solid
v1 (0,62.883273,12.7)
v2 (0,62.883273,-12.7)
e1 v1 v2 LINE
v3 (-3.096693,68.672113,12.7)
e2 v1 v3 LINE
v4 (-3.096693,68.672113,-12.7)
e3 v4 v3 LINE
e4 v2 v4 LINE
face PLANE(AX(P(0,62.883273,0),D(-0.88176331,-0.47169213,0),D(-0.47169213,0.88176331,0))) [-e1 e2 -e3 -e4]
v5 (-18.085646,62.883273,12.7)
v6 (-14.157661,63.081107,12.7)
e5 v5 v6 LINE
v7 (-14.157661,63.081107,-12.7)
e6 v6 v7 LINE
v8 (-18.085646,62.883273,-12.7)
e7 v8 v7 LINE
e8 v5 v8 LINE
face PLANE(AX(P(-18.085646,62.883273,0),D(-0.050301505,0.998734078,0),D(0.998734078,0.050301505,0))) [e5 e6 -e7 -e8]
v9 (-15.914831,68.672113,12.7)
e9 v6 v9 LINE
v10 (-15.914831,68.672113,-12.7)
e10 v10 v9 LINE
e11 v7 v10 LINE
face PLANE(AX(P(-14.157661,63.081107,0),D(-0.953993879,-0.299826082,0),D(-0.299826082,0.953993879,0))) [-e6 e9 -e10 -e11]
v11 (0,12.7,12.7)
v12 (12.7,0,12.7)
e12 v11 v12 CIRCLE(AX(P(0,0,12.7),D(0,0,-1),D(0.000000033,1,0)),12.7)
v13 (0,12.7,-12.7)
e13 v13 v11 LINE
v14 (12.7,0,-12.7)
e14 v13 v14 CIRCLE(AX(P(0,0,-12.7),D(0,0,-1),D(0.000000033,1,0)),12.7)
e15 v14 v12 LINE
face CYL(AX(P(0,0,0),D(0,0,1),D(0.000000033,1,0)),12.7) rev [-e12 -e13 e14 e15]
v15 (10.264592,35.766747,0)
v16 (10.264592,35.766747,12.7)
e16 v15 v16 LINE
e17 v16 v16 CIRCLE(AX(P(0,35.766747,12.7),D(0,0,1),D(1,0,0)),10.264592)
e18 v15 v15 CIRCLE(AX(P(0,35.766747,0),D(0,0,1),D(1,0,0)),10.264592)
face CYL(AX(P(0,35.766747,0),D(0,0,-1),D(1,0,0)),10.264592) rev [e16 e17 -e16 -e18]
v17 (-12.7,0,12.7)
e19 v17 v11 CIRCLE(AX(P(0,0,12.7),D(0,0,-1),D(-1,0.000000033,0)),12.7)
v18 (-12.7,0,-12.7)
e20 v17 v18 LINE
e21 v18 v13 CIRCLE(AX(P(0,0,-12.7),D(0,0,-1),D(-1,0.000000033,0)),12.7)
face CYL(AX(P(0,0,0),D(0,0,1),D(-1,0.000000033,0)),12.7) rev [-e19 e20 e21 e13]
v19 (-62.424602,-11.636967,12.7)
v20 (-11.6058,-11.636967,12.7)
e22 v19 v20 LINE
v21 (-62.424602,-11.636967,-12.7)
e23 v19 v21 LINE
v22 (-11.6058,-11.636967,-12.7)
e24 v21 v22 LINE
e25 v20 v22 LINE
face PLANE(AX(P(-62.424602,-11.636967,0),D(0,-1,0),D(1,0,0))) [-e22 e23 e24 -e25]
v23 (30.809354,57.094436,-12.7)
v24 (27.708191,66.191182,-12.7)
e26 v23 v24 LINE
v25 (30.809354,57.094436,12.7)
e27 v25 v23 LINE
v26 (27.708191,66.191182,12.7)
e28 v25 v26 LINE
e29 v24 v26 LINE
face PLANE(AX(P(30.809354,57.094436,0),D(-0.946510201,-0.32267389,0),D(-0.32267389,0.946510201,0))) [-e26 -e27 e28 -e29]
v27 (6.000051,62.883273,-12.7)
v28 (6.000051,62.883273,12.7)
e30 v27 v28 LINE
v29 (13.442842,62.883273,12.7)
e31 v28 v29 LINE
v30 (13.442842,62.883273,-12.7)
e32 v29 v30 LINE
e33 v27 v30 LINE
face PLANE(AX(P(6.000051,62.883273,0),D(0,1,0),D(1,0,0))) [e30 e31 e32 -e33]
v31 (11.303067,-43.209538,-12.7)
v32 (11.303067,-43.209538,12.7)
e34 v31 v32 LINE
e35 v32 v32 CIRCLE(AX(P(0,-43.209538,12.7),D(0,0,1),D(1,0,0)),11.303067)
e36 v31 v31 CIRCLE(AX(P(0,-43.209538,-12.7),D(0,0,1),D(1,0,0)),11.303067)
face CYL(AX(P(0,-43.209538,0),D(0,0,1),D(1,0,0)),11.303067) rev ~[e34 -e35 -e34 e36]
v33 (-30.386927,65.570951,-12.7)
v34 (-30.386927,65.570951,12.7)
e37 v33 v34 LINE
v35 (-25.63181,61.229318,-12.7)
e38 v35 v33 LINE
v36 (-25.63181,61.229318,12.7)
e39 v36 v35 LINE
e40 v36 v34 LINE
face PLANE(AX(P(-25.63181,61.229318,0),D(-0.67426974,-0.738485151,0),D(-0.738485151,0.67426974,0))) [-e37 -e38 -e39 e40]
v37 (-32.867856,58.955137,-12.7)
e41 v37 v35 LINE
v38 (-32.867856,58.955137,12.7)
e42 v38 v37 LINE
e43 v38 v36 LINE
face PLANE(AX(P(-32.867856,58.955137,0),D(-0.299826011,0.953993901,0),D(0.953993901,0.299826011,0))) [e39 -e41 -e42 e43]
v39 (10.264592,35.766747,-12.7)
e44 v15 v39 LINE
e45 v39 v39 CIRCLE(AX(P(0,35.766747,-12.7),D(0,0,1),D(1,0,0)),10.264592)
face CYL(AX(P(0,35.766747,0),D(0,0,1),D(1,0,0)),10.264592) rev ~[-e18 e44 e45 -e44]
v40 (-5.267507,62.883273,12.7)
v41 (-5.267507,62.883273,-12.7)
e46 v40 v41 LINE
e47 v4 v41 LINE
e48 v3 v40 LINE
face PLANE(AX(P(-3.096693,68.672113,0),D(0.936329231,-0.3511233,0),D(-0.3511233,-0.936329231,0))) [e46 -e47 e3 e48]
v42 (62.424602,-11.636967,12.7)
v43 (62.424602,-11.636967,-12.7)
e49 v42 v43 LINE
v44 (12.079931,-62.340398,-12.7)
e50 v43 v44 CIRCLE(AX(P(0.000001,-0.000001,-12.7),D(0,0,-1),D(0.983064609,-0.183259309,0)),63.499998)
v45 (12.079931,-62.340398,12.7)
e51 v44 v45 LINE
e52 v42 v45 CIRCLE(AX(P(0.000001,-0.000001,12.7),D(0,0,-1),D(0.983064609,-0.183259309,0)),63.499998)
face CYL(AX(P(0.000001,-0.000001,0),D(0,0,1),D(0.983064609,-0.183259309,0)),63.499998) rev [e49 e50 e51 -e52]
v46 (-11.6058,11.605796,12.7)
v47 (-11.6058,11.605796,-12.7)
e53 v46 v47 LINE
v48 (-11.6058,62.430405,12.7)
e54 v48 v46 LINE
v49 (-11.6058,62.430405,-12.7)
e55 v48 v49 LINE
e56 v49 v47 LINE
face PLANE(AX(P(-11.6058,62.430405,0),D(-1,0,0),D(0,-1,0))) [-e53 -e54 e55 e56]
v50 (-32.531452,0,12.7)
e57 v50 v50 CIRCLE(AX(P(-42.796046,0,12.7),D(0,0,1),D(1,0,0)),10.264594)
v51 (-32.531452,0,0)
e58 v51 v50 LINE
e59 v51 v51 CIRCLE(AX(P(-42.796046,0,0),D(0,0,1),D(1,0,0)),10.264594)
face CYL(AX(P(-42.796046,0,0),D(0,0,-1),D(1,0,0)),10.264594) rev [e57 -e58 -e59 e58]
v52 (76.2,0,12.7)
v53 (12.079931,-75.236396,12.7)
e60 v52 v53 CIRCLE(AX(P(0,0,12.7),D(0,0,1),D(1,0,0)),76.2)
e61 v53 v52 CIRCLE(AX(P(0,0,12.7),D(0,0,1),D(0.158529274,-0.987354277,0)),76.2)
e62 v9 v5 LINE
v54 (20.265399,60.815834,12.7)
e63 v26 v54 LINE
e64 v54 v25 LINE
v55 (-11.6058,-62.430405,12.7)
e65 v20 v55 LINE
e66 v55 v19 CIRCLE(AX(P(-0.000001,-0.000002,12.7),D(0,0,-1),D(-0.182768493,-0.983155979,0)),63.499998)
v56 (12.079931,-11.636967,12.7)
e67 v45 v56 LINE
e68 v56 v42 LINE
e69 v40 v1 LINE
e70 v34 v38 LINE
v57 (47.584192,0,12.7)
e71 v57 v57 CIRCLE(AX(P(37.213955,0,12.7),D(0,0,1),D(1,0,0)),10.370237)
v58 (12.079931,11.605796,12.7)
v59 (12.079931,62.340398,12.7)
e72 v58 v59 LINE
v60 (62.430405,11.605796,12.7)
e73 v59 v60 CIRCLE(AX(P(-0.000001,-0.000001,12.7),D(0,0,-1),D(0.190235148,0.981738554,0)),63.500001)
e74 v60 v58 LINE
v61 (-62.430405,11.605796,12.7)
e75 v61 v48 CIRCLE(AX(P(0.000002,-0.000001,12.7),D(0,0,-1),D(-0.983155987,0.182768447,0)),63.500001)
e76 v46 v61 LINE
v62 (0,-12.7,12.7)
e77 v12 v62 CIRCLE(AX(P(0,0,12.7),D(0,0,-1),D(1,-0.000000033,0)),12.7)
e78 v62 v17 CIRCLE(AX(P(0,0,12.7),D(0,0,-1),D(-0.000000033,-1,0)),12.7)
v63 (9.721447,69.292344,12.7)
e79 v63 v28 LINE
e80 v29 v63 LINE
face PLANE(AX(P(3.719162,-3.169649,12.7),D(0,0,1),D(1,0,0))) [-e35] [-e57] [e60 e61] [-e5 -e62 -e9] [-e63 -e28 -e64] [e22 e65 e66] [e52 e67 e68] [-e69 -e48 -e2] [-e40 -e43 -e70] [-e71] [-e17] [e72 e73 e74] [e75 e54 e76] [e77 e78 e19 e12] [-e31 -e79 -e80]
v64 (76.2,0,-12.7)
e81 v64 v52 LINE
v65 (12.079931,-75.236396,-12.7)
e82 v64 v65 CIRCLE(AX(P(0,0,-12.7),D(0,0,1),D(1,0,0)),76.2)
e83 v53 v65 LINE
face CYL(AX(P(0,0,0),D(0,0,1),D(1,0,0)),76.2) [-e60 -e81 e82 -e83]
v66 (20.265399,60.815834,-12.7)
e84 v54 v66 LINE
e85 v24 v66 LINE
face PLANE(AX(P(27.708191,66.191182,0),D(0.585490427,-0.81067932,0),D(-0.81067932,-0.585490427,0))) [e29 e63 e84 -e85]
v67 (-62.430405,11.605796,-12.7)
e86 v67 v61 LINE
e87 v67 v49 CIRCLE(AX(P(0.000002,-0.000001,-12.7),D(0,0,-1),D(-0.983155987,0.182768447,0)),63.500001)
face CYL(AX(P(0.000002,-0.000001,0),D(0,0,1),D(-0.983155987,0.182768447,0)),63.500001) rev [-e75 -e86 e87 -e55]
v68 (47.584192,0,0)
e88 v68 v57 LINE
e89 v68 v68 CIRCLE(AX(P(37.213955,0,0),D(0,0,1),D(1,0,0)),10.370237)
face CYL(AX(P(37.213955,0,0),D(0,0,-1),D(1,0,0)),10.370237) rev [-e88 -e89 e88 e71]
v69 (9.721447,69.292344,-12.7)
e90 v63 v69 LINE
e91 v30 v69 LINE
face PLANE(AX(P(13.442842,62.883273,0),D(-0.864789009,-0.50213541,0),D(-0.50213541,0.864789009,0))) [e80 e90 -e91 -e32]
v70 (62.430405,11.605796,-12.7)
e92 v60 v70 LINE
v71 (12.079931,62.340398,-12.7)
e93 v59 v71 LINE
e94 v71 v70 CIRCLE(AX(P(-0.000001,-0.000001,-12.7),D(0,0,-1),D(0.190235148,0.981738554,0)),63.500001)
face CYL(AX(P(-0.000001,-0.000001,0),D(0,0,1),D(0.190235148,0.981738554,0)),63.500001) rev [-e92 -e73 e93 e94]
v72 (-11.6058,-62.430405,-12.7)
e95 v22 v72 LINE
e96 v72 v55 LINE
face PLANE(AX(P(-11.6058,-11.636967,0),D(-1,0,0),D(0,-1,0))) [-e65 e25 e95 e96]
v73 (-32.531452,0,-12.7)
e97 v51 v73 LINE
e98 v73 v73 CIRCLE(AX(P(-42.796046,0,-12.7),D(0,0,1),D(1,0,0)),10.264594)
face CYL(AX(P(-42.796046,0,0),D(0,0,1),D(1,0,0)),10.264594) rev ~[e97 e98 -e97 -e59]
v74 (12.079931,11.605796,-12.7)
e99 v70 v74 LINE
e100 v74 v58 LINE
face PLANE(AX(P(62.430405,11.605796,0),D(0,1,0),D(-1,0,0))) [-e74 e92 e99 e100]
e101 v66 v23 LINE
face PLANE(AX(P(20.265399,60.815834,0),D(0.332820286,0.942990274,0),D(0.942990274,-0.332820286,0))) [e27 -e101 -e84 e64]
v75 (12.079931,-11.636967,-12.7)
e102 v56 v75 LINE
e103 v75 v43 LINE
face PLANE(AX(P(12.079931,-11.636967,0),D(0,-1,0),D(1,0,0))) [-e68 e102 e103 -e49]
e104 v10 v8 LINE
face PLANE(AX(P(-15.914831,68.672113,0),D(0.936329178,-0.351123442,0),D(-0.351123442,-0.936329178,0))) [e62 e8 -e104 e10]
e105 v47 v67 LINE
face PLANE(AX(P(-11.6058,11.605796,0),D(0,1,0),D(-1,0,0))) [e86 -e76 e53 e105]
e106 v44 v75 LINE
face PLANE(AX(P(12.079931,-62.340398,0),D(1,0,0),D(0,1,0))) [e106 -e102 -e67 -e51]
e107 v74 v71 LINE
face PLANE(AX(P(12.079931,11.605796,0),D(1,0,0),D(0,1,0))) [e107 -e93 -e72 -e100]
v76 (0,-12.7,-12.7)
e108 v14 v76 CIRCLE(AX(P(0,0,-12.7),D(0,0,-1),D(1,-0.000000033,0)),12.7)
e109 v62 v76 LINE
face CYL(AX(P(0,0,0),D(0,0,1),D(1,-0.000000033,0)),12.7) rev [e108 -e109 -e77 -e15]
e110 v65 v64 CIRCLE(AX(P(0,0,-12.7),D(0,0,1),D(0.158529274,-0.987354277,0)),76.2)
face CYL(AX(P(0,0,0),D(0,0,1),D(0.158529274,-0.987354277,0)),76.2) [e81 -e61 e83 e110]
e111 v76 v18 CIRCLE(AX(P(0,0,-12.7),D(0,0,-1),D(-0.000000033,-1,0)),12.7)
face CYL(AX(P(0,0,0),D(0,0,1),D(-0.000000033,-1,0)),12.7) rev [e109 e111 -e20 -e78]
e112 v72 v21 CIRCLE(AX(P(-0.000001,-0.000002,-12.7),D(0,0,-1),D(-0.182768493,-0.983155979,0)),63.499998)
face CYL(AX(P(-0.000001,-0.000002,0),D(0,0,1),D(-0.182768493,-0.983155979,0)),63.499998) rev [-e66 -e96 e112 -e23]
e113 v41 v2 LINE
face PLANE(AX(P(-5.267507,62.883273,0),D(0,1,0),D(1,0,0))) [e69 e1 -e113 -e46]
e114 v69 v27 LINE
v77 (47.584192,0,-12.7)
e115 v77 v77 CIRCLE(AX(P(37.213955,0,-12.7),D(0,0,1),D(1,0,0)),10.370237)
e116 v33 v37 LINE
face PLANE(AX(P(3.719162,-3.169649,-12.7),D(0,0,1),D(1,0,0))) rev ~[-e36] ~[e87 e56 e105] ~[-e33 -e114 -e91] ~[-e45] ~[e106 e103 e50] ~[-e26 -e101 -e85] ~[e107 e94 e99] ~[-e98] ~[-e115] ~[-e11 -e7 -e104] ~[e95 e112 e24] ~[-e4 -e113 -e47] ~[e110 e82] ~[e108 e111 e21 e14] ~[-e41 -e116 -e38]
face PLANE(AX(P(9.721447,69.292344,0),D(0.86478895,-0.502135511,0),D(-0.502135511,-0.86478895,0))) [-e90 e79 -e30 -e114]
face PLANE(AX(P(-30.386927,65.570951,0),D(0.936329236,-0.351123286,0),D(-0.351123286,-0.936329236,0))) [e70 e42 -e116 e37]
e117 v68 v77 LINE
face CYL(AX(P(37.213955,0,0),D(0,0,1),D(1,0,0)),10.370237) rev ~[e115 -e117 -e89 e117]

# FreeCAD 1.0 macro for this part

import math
import FreeCAD as App
import Part
import Sketcher
from FreeCAD import Vector
Q = App.Units.Quantity


def add_polygon(sketch, points):
    """Adds a closed chain of lines whose ends are joined by coincident constraints."""
    first, n = sketch.GeometryCount, len(points)
    for a, b in zip(points, points[1:] + points[:1]):
        sketch.addGeometry(Part.LineSegment(App.Vector(*a, 0), App.Vector(*b, 0)), False)
    for i in range(n):
        sketch.addConstraint(Sketcher.Constraint("Coincident", first + i, 2, first + (i + 1) % n, 1))

doc = App.newDocument("Part")
body = doc.addObject("PartDesign::Body", "Body")

# Sketch on XY plane
sketch1 = body.newObject("Sketcher::SketchObject", "Sketch")
sketch1.AttachmentSupport = (doc.getObject("XY_Plane"), [""])
sketch1.MapMode = "FlatFace"
sketch1.addGeometry([
    Part.ArcOfCircle(Part.Circle(Vector(0, 0, 0), Vector(0, 0, 1), 76), math.radians(-81), math.radians(0)),  # 0
    Part.ArcOfCircle(Part.Circle(Vector(0, 0, 0), Vector(0, 0, 1), 76), math.radians(0), math.radians(279)),  # 1
    Part.LineSegment(Vector(-12, -12, 0), Vector(-12, -62, 0)),  # 2
    Part.ArcOfCircle(Part.Circle(Vector(0, 0, 0), Vector(0, 0, 1), 63), math.radians(-169), math.radians(-101)),  # 3
    Part.LineSegment(Vector(-62, -12, 0), Vector(-12, -12, 0)),  # 4
    Part.ArcOfCircle(Part.Circle(Vector(0, 0, 0), Vector(0, 0, 1), 63), math.radians(-79), math.radians(-11)),  # 5
    Part.LineSegment(Vector(12, -62, 0), Vector(12, -12, 0)),  # 6
    Part.LineSegment(Vector(12, -12, 0), Vector(62, -12, 0)),  # 7
    Part.LineSegment(Vector(-12, 12, 0), Vector(-62, 12, 0)),  # 8
    Part.ArcOfCircle(Part.Circle(Vector(0, 0, 0), Vector(0, 0, 1), 64), math.radians(101), math.radians(169)),  # 9
    Part.LineSegment(Vector(-12, 62, 0), Vector(-12, 12, 0)),  # 10
    Part.ArcOfCircle(Part.Circle(Vector(0, 0, 0), Vector(0, 0, 1), 13), math.radians(90), math.radians(180)),  # 11
    Part.ArcOfCircle(Part.Circle(Vector(0, 0, 0), Vector(0, 0, 1), 13), math.radians(0), math.radians(90)),  # 12
    Part.ArcOfCircle(Part.Circle(Vector(0, 0, 0), Vector(0, 0, 1), 13), math.radians(-90), math.radians(0)),  # 13
    Part.ArcOfCircle(Part.Circle(Vector(0, 0, 0), Vector(0, 0, 1), 13), math.radians(-180), math.radians(-90)),  # 14
    Part.LineSegment(Vector(62, 12, 0), Vector(12, 12, 0)),  # 15
    Part.LineSegment(Vector(12, 12, 0), Vector(12, 62, 0)),  # 16
    Part.ArcOfCircle(Part.Circle(Vector(0, 0, 0), Vector(0, 0, 1), 64), math.radians(11), math.radians(79)),  # 17
], False)
sketch1.addConstraint([
    Sketcher.Constraint("Tangent", 0, 1, 1, 2),
    Sketcher.Constraint("Coincident", 1, 1, 0, 2),
    Sketcher.Constraint("Coincident", 2, 2, 3, 2),
    Sketcher.Constraint("Coincident", 3, 1, 4, 1),
    Sketcher.Constraint("Coincident", 4, 2, 2, 1),
    Sketcher.Constraint("Coincident", 5, 1, 6, 1),
    Sketcher.Constraint("Coincident", 6, 2, 7, 1),
    Sketcher.Constraint("Coincident", 7, 2, 5, 2),
    Sketcher.Constraint("Coincident", 8, 2, 9, 2),
    Sketcher.Constraint("Coincident", 9, 1, 10, 1),
    Sketcher.Constraint("Coincident", 10, 2, 8, 1),
    Sketcher.Constraint("Tangent", 11, 1, 12, 2),
    Sketcher.Constraint("Tangent", 12, 1, 13, 2),
    Sketcher.Constraint("Tangent", 13, 1, 14, 2),
    Sketcher.Constraint("Tangent", 14, 1, 11, 2),
    Sketcher.Constraint("Coincident", 15, 2, 16, 1),
    Sketcher.Constraint("Coincident", 16, 2, 17, 2),
    Sketcher.Constraint("Coincident", 17, 1, 15, 1),
    Sketcher.Constraint("Vertical", 2),
    Sketcher.Constraint("Horizontal", 4),
    Sketcher.Constraint("Vertical", 6),
    Sketcher.Constraint("Horizontal", 7),
    Sketcher.Constraint("Horizontal", 8),
    Sketcher.Constraint("Vertical", 10),
    Sketcher.Constraint("Horizontal", 15),
    Sketcher.Constraint("Vertical", 16),
    Sketcher.Constraint("Coincident", 0, 3, -1, 1),
    Sketcher.Constraint("Coincident", 3, 3, -1, 1),
    Sketcher.Constraint("Coincident", 5, 3, -1, 1),
    Sketcher.Constraint("Coincident", 9, 3, -1, 1),
    Sketcher.Constraint("Coincident", 11, 3, -1, 1),
    Sketcher.Constraint("Coincident", 17, 3, -1, 1),
    Sketcher.Constraint("Equal", 3, 5),
    Sketcher.Constraint("Equal", 11, 12),
    Sketcher.Constraint("Equal", 9, 17),
    Sketcher.Constraint("Symmetric", 2, 2, 9, 1, -1),
    Sketcher.Constraint("PointOnObject", 1, 1, -1),
    Sketcher.Constraint("PointOnObject", 11, 1, -2),
    Sketcher.Constraint("PointOnObject", 12, 1, -1),
    Sketcher.Constraint("PointOnObject", 13, 1, -2),
    Sketcher.Constraint("PointOnObject", 14, 1, -1),
    Sketcher.Constraint("Horizontal", 4, 2, 6, 2),
    Sketcher.Constraint("Horizontal", 10, 2, 15, 2),
    Sketcher.Constraint("Vertical", 0, 1, 5, 1),
    Sketcher.Constraint("Vertical", 6, 2, 15, 2),
    Sketcher.Constraint("Radius", 0, Q("3 in")),
    Sketcher.Constraint("Radius", 3, Q("2.4999999 in")),
    Sketcher.Constraint("Radius", 11, Q("0.5 in")),
    Sketcher.Constraint("DistanceX", 4, 1, 4, 2, Q("50.818802 mm")),
    Sketcher.Constraint("DistanceX", 7, 1, 7, 2, Q("50.344671 mm")),
    Sketcher.Constraint("DistanceY", 2, 2, 2, 1, Q("50.793438 mm")),
    Sketcher.Constraint("DistanceY", 10, 2, 10, 1, Q("50.824609 mm")),
])
pad1 = body.newObject("PartDesign::Pad", "Pad")
pad1.Profile = sketch1
pad1.Length = Q("1 in")
pad1.Midplane = True

# Sketch on XY plane
sketch2 = body.newObject("Sketcher::SketchObject", "Sketch001")
sketch2.AttachmentSupport = (doc.getObject("XY_Plane"), [""])
sketch2.MapMode = "FlatFace"
sketch2.addGeometry(Part.Circle(Vector(-39.5, 31, 0), Vector(0, 0, 1), 3.4), False)  # 0
sketch2.addGeometry(Part.Circle(Vector(-28.7, 30.8, 0), Vector(0, 0, 1), 3.4), False)  # 1
add_polygon(sketch2, [(-25.6, 61.2), (-30.4, 65.6), (-32.9, 59)])  # lines 2-4
add_polygon(sketch2, [(-14.2, 63.1), (-15.9, 68.7), (-18.1, 62.9)])  # lines 5-7
add_polygon(sketch2, [(0, 62.9), (-3.1, 68.7), (-5.3, 62.9)])  # lines 8-10
add_polygon(sketch2, [(9.7, 69.3), (6, 62.9), (13.4, 62.9)])  # lines 11-13
add_polygon(sketch2, [(30.8, 57.1), (27.7, 66.2), (20.3, 60.8)])  # lines 14-16
sketch2.addGeometry(Part.Circle(Vector(25.2, 32.3, 0), Vector(0, 0, 1), 3.5), False)  # 17
sketch2.addGeometry(Part.Circle(Vector(38.7, 32, 0), Vector(0, 0, 1), 3.5), False)  # 18
sketch2.addGeometry(Part.Circle(Vector(-37.4, -32.4, 0), Vector(0, 0, 1), 3.7), False)  # 19
sketch2.addGeometry(Part.Circle(Vector(-26, -32.4, 0), Vector(0, 0, 1), 3.5), False)  # 20
sketch2.addGeometry(Part.Circle(Vector(20.7, -34.6, 0), Vector(0, 0, 1), 3.9), False)  # 21
sketch2.addGeometry(Part.Circle(Vector(34.1, -34.6, 0), Vector(0, 0, 1), 3.9), False)  # 22
sketch2.addGeometry(Part.Circle(Vector(37.2, 0, 0), Vector(0, 0, 1), 10.4), False)  # 23
sketch2.addGeometry(Part.Circle(Vector(-42.8, 0, 0), Vector(0, 0, 1), 10.3), False)  # 24
sketch2.addGeometry(Part.Circle(Vector(0, 35.8, 0), Vector(0, 0, 1), 10.3), False)  # 25
sketch2.addGeometry(Part.Circle(Vector(0, -43.2, 0), Vector(0, 0, 1), 11.3), False)  # 26
sketch2.addConstraint([
    Sketcher.Constraint("Horizontal", 10),
    Sketcher.Constraint("Horizontal", 12),
    Sketcher.Constraint("Equal", 0, 1),
    Sketcher.Constraint("PointOnObject", 23, 3, -1),
    Sketcher.Constraint("PointOnObject", 24, 3, -1),
    Sketcher.Constraint("PointOnObject", 25, 3, -2),
    Sketcher.Constraint("PointOnObject", 26, 3, -2),
    Sketcher.Constraint("PointOnObject", 10, 2, -2),
    Sketcher.Constraint("Perpendicular", 4, 5),
    Sketcher.Constraint("Parallel", 3, 6),
    Sketcher.Constraint("Parallel", 6, 9),
    Sketcher.Constraint("Horizontal", 19, 3, 20, 3),
    Sketcher.Constraint("Horizontal", 21, 3, 22, 3),
    Sketcher.Constraint("Horizontal", 5, 2, 8, 2),
    Sketcher.Constraint("Horizontal", 6, 2, 9, 2),
    Sketcher.Constraint("Horizontal", 10, 2, 11, 2),
    Sketcher.Constraint("Equal", 11, 13),
    Sketcher.Constraint("Diameter", 19, Q("7.492098 mm")),
    Sketcher.Constraint("DistanceX", 17, 3, 22, 3, Q("0.35 in")),
    Sketcher.Constraint("Diameter", 21, Q("7.785948 mm")),
    Sketcher.Constraint("Diameter", 24, Q("20.529188 mm")),
    Sketcher.Constraint("Diameter", 0, Q("6.731104 mm")),
    Sketcher.Constraint("Diameter", 17, Q("7.041446 mm")),
    Sketcher.Constraint("Diameter", 18, Q("7.029306 mm")),
    Sketcher.Constraint("Diameter", 20, Q("6.995108 mm")),
    Sketcher.Constraint("Diameter", 22, Q("7.879302 mm")),
    Sketcher.Constraint("Diameter", 23, Q("20.740474 mm")),
    Sketcher.Constraint("Diameter", 25, Q("20.529184 mm")),
    Sketcher.Constraint("Diameter", 26, Q("22.606134 mm")),
    Sketcher.Constraint("DistanceX", 12, 1, 12, 2, Q("7.442791 mm")),
    Sketcher.Constraint("DistanceX", 19, 3, -1, 1, Q("37.420698 mm")),
    Sketcher.Constraint("DistanceX", -1, 1, 15, 2, Q("20.265399 mm")),
    Sketcher.Constraint("DistanceY", 18, 3, 25, 3, Q("3.721398 mm")),
    Sketcher.Constraint("DistanceY", 16, 2, 15, 2, Q("3.721398 mm")),
    Sketcher.Constraint("Distance", 5, Q("5.860631 mm")),
    Sketcher.Constraint("Distance", 11, Q("7.411139 mm")),
    Sketcher.Constraint("DistanceX", 10, 1, 10, 2, Q("5.267507 mm")),
    Sketcher.Constraint("DistanceX", 0, 3, -1, 1, Q("39.48367 mm")),
    Sketcher.Constraint("DistanceY", -1, 1, 0, 3, Q("31.044669 mm")),
    Sketcher.Constraint("DistanceX", 1, 3, -1, 1, Q("28.732972 mm")),
    Sketcher.Constraint("DistanceY", -1, 1, 18, 3, Q("32.045349 mm")),
    Sketcher.Constraint("DistanceY", 19, 3, -1, 1, Q("32.44324 mm")),
    Sketcher.Constraint("DistanceX", -1, 1, 21, 3, Q("20.674419 mm")),
    Sketcher.Constraint("DistanceY", 26, 3, -1, 1, Q("43.209538 mm")),
    Sketcher.Constraint("DistanceY", -1, 1, 2, 2, Q("65.570951 mm")),
    Sketcher.Constraint("DistanceX", 4, 2, -1, 1, Q("25.63181 mm")),
    Sketcher.Constraint("DistanceX", 5, 2, -1, 1, Q("15.914831 mm")),
    Sketcher.Constraint("DistanceX", 7, 2, -1, 1, Q("14.157661 mm")),
    Sketcher.Constraint("DistanceX", -1, 1, 11, 2, Q("6.000051 mm")),
    Sketcher.Constraint("DistanceX", -1, 1, 14, 2, Q("27.708191 mm")),
    Sketcher.Constraint("DistanceY", -1, 1, 14, 2, Q("66.191182 mm")),
    Sketcher.Constraint("DistanceY", 1, 3, 17, 3, Q("1.414171 mm")),
    Sketcher.Constraint("DistanceX", 17, 3, 18, 3, Q("13.43837 mm")),
    Sketcher.Constraint("DistanceX", 19, 3, 17, 3, Q("62.643491 mm")),
    Sketcher.Constraint("DistanceX", 19, 3, 20, 3, Q("11.370931 mm")),
    Sketcher.Constraint("DistanceY", 21, 3, 17, 3, Q("66.835561 mm")),
    Sketcher.Constraint("DistanceX", 23, 3, 18, 3, Q("1.447208 mm")),
    Sketcher.Constraint("DistanceX", 24, 3, 20, 3, Q("16.746279 mm")),
    Sketcher.Constraint("DistanceY", 17, 3, 25, 3, Q("3.514651 mm")),
    Sketcher.Constraint("DistanceX", 2, 2, 17, 3, Q("55.60972 mm")),
    Sketcher.Constraint("DistanceX", 3, 2, 2, 2, Q("2.480929 mm")),
    Sketcher.Constraint("DistanceY", 0, 3, 3, 2, Q("27.910468 mm")),
    Sketcher.Constraint("DistanceY", 6, 2, 5, 2, Q("5.78884 mm")),
    Sketcher.Constraint("DistanceY", 4, 2, 7, 2, Q("1.851789 mm")),
    Sketcher.Constraint("DistanceY", 15, 2, 12, 2, Q("2.067439 mm")),
    Sketcher.Constraint("DistanceX", 12, 2, 16, 2, Q("17.366512 mm")),
])
pocket1 = body.newObject("PartDesign::Pocket", "Pocket")
pocket1.Profile = sketch2
pocket1.Length = Q("1 in")
pocket1.Midplane = True

doc.recompute()
